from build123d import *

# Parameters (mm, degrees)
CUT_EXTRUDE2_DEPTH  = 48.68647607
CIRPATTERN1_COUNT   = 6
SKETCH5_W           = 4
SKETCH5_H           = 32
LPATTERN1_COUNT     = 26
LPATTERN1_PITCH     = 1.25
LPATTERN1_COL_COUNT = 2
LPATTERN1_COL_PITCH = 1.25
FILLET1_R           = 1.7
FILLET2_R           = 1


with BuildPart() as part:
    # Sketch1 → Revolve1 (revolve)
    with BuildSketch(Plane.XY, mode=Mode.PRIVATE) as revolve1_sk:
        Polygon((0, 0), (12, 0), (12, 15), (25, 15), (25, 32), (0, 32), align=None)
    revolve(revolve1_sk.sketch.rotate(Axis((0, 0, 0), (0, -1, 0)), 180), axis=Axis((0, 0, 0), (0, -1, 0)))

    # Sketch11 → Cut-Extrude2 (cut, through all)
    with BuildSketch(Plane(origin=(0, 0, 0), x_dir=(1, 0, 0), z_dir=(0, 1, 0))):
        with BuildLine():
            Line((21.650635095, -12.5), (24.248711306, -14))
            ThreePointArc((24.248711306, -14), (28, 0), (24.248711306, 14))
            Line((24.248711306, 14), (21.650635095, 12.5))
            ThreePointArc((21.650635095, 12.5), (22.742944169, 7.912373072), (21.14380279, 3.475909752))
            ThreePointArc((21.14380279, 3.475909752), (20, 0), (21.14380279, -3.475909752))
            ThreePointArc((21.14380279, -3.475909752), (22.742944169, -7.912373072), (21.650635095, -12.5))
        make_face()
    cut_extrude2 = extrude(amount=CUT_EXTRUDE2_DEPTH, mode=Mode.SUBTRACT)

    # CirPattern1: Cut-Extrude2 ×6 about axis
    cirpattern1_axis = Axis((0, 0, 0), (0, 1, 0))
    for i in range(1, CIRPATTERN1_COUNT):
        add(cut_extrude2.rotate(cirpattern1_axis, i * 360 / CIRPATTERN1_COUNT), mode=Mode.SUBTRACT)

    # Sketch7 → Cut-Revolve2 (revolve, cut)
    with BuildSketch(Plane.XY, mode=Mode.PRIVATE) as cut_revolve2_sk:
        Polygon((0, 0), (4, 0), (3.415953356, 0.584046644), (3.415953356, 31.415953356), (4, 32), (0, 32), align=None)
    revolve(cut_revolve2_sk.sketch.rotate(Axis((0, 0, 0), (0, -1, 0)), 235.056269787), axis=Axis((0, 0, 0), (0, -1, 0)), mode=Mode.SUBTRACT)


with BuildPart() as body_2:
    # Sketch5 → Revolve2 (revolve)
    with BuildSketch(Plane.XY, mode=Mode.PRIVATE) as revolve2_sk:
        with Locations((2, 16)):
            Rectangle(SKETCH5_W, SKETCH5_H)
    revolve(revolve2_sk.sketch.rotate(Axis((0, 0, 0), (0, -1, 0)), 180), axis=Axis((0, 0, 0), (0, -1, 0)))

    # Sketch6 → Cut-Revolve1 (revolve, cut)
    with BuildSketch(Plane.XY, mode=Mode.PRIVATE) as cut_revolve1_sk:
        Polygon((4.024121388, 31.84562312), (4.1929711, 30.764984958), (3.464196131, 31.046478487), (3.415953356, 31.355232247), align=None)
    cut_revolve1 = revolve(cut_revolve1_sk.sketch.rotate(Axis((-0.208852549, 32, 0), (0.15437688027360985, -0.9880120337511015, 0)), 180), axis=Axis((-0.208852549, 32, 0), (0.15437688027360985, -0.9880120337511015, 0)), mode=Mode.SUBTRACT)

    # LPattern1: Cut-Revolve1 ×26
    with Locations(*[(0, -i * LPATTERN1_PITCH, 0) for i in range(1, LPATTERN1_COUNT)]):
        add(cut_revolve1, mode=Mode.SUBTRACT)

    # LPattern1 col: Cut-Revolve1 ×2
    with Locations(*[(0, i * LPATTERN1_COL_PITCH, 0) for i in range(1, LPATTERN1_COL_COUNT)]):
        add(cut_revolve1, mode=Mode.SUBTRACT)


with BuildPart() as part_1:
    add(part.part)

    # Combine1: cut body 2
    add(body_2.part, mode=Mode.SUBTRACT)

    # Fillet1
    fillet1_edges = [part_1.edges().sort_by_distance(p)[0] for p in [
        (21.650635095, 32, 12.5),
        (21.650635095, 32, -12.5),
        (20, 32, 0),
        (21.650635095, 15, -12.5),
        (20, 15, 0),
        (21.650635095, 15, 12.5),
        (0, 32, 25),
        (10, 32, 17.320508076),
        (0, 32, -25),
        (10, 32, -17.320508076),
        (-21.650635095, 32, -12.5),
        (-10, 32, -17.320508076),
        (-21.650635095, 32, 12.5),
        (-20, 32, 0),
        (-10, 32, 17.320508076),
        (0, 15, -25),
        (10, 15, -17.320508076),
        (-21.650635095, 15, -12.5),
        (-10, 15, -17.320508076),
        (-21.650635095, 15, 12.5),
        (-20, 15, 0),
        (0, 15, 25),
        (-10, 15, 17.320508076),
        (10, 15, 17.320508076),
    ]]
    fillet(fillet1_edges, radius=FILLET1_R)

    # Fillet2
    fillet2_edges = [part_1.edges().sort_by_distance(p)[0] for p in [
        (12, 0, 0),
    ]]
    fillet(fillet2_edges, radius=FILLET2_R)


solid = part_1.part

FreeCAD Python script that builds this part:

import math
import FreeCAD as App
import Part
import Sketcher
Q = App.Units.Quantity


def edges_at(feature, points):
    """Names of the edges that pass closest to the given points."""
    edges = feature.Shape.Edges
    near = lambda p: min(range(len(edges)), key=lambda i: edges[i].distToShape(Part.Vertex(*p))[0])
    return sorted({f"Edge{near(p) + 1}" for p in points})

doc = App.newDocument("Part")
body = doc.addObject("PartDesign::Body", "Body")

# Sketch on XY plane
sketch1 = body.newObject("Sketcher::SketchObject", "Sketch")
sketch1.AttachmentSupport = (doc.getObject("XY_Plane"), [""])
sketch1.MapMode = "FlatFace"
sketch1.addGeometry([
    Part.LineSegment(App.Vector(0, 0, 0), App.Vector(12, 0, 0)),  # 0
    Part.LineSegment(App.Vector(12, 0, 0), App.Vector(12, 15, 0)),  # 1
    Part.LineSegment(App.Vector(12, 15, 0), App.Vector(25, 15, 0)),  # 2
    Part.LineSegment(App.Vector(25, 15, 0), App.Vector(25, 32, 0)),  # 3
    Part.LineSegment(App.Vector(25, 32, 0), App.Vector(0, 32, 0)),  # 4
    Part.LineSegment(App.Vector(0, 32, 0), App.Vector(0, 0, 0)),  # 5
], False)
sketch1.addConstraint([
    Sketcher.Constraint("Coincident", 0, 2, 1, 1),
    Sketcher.Constraint("Coincident", 1, 2, 2, 1),
    Sketcher.Constraint("Coincident", 2, 2, 3, 1),
    Sketcher.Constraint("Coincident", 3, 2, 4, 1),
    Sketcher.Constraint("Coincident", 4, 2, 5, 1),
    Sketcher.Constraint("Coincident", 5, 2, 0, 1),
    Sketcher.Constraint("Horizontal", 0),
    Sketcher.Constraint("Vertical", 1),
    Sketcher.Constraint("Horizontal", 2),
    Sketcher.Constraint("Vertical", 3),
    Sketcher.Constraint("Horizontal", 4),
    Sketcher.Constraint("Vertical", 5),
    Sketcher.Constraint("Coincident", 5, 2, -1, 1),
    Sketcher.Constraint("DistanceX", 0, 1, 0, 2, Q("12 mm")),
    Sketcher.Constraint("DistanceX", 2, 1, 2, 2, Q("13 mm")),
    Sketcher.Constraint("DistanceY", 1, 1, 1, 2, Q("15 mm")),
    Sketcher.Constraint("DistanceY", 3, 1, 3, 2, Q("17 mm")),
])
revolution = body.newObject("PartDesign::Revolution", "Revolution")
revolution.Profile = sketch1
revolution.ReferenceAxis = (sketch1, ["V_Axis"])
revolution.Angle = 360

# Sketch on XZ plane
sketch2 = body.newObject("Sketcher::SketchObject", "Sketch001")
sketch2.AttachmentSupport = (doc.getObject("XZ_Plane"), [""])
sketch2.MapMode = "FlatFace"
sketch2.addGeometry([
    Part.LineSegment(App.Vector(21.7, 12.5, 0), App.Vector(24.2, 14, 0)),  # 0
    Part.ArcOfCircle(Part.Circle(App.Vector(0, 0, 0), App.Vector(0, 0, 1), 28), math.radians(-30), math.radians(30)),  # 1
    Part.LineSegment(App.Vector(24.2, -14, 0), App.Vector(21.7, -12.5, 0)),  # 2
    Part.ArcOfCircle(Part.Circle(App.Vector(14.5, -8.4, 0), App.Vector(0, 0, 1), 8.2), math.radians(-30), math.radians(36)),  # 3
    Part.ArcOfCircle(Part.Circle(App.Vector(25.9, 0, 0), App.Vector(0, 0, 1), 5.9), math.radians(144), math.radians(216)),  # 4
    Part.ArcOfCircle(Part.Circle(App.Vector(14.5, 8.4, 0), App.Vector(0, 0, 1), 8.2), math.radians(-36), math.radians(30)),  # 5
], False)
sketch2.addConstraint([
    Sketcher.Constraint("Coincident", 0, 2, 1, 2),
    Sketcher.Constraint("Coincident", 1, 1, 2, 1),
    Sketcher.Constraint("Coincident", 2, 2, 3, 1),
    Sketcher.Constraint("Tangent", 3, 2, 4, 2),
    Sketcher.Constraint("Tangent", 4, 1, 5, 1),
    Sketcher.Constraint("Coincident", 5, 2, 0, 1),
    Sketcher.Constraint("Coincident", 1, 3, -1, 1),
    Sketcher.Constraint("Equal", 3, 5),
    Sketcher.Constraint("Symmetric", 3, 3, 5, 3, -1),
    Sketcher.Constraint("Vertical", 0, 2, 1, 1),
    Sketcher.Constraint("Vertical", 2, 2, 5, 2),
    Sketcher.Constraint("Radius", 1, Q("28 mm")),
    Sketcher.Constraint("Angle", 0, Q("30 deg")),
    Sketcher.Constraint("Radius", 3, Q("8.25 mm")),
    Sketcher.Constraint("Distance", 0, Q("3 mm")),
    Sketcher.Constraint("DistanceY", -1, 1, 0, 2, Q("14 mm")),
    Sketcher.Constraint("DistanceY", 3, 3, 5, 3, Q("16.75 mm")),
    Sketcher.Constraint("Radius", 4, Q("5.853384 mm")),
])
pocket1 = body.newObject("PartDesign::Pocket", "Pocket")
pocket1.Profile = sketch2
pocket1.Type = "ThroughAll"
doc.recompute()

polarpattern = body.newObject("PartDesign::PolarPattern", "PolarPattern")
polarpattern.Originals = [pocket1]
polarpattern.Axis = (doc.getObject("Y_Axis"), [""])
polarpattern.Angle = 360
polarpattern.Occurrences = 6
body.Tip = polarpattern

# Sketch on XY plane
sketch3 = body.newObject("Sketcher::SketchObject", "Sketch002")
sketch3.AttachmentSupport = (doc.getObject("XY_Plane"), [""])
sketch3.MapMode = "FlatFace"
sketch3.addGeometry([
    Part.LineSegment(App.Vector(0, 0, 0), App.Vector(4, 0, 0)),  # 0
    Part.LineSegment(App.Vector(4, 0, 0), App.Vector(3.4, 0.6, 0)),  # 1
    Part.LineSegment(App.Vector(3.4, 0.6, 0), App.Vector(3.4, 31.4, 0)),  # 2
    Part.LineSegment(App.Vector(3.4, 31.4, 0), App.Vector(4, 32, 0)),  # 3
    Part.LineSegment(App.Vector(4, 32, 0), App.Vector(0, 32, 0)),  # 4
    Part.LineSegment(App.Vector(0, 32, 0), App.Vector(0, 0, 0)),  # 5
], False)
sketch3.addConstraint([
    Sketcher.Constraint("Coincident", 0, 2, 1, 1),
    Sketcher.Constraint("Coincident", 1, 2, 2, 1),
    Sketcher.Constraint("Coincident", 2, 2, 3, 1),
    Sketcher.Constraint("Coincident", 3, 2, 4, 1),
    Sketcher.Constraint("Coincident", 4, 2, 5, 1),
    Sketcher.Constraint("Coincident", 5, 2, 0, 1),
    Sketcher.Constraint("Horizontal", 0),
    Sketcher.Constraint("Vertical", 2),
    Sketcher.Constraint("Horizontal", 4),
    Sketcher.Constraint("Vertical", 5),
    Sketcher.Constraint("Coincident", 5, 2, -1, 1),
    Sketcher.Constraint("Perpendicular", 1, 3),
    Sketcher.Constraint("Vertical", 0, 2, 3, 2),
    Sketcher.Constraint("Equal", 1, 3),
    Sketcher.Constraint("DistanceX", 0, 1, 0, 2, Q("4 mm")),
    Sketcher.Constraint("DistanceY", 5, 2, 5, 1, Q("32 mm")),
    Sketcher.Constraint("DistanceY", 2, 1, 2, 2, Q("30.831907 mm")),
])
groove = body.newObject("PartDesign::Groove", "Groove")
groove.Profile = sketch3
groove.ReferenceAxis = (sketch3, ["V_Axis"])
groove.Angle = 360
body2 = doc.addObject("PartDesign::Body", "Body001")

# Sketch on XY plane
sketch4 = body2.newObject("Sketcher::SketchObject", "Sketch003")
sketch4.AttachmentSupport = (doc.getObject("XY_Plane001"), [""])
sketch4.MapMode = "FlatFace"
sketch4.addGeometry([
    Part.LineSegment(App.Vector(0, 32, 0), App.Vector(0, 0, 0)),
    Part.LineSegment(App.Vector(0, 0, 0), App.Vector(4, 0, 0)),
    Part.LineSegment(App.Vector(4, 0, 0), App.Vector(4, 32, 0)),
    Part.LineSegment(App.Vector(4, 32, 0), App.Vector(0, 32, 0)),
], False)
sketch4.addConstraint([
    Sketcher.Constraint("Coincident", 0, 2, 1, 1),
    Sketcher.Constraint("Coincident", 1, 2, 2, 1),
    Sketcher.Constraint("Coincident", 2, 2, 3, 1),
    Sketcher.Constraint("Coincident", 3, 2, 0, 1),
    Sketcher.Constraint("Vertical", 0),
    Sketcher.Constraint("Horizontal", 1),
    Sketcher.Constraint("Vertical", 2),
    Sketcher.Constraint("Horizontal", 3),
    Sketcher.Constraint("Coincident", 0, 2, -1, 1),
    Sketcher.Constraint("DistanceX", 1, 1, 1, 2, Q("4 mm")),
    Sketcher.Constraint("DistanceY", 0, 2, 0, 1, Q("32 mm")),
])
revolution2 = body2.newObject("PartDesign::Revolution", "Revolution001")
revolution2.Profile = sketch4
revolution2.ReferenceAxis = (sketch4, ["V_Axis"])
revolution2.Angle = 360

# Sketch on XY plane
sketch5 = body2.newObject("Sketcher::SketchObject", "Sketch004")
sketch5.AttachmentSupport = (doc.getObject("XY_Plane001"), [""])
sketch5.MapMode = "FlatFace"
sketch5.addGeometry([
    Part.LineSegment(App.Vector(4.19, 30.76, 0), App.Vector(4.02, 31.85, 0)),
    Part.LineSegment(App.Vector(4.02, 31.85, 0), App.Vector(3.42, 31.36, 0)),
    Part.LineSegment(App.Vector(3.42, 31.36, 0), App.Vector(3.46, 31.05, 0)),
    Part.LineSegment(App.Vector(3.46, 31.05, 0), App.Vector(4.19, 30.76, 0)),
], False)
sketch5.addGeometry(Part.LineSegment(App.Vector(-0.08, 31.2, 0), App.Vector(0.08, 30.12, 0)), True)  # axis
sketch5.addConstraint([
    Sketcher.Constraint("Coincident", 0, 2, 1, 1),
    Sketcher.Constraint("Coincident", 1, 2, 2, 1),
    Sketcher.Constraint("Coincident", 2, 2, 3, 1),
    Sketcher.Constraint("Coincident", 3, 2, 0, 1),
    Sketcher.Constraint("Parallel", 0, 2),
    Sketcher.Constraint("Parallel", 2, 4),
    Sketcher.Constraint("Equal", 1, 3),
    Sketcher.Constraint("Equal", 0, 4),
    Sketcher.Constraint("Distance", 2, Q("0.3125 mm")),
    Sketcher.Constraint("DistanceY", 4, 2, 0, 2, Q("1.722599 mm")),
    Sketcher.Constraint("Distance", 0, Q("1.09375 mm")),
    Sketcher.Constraint("Distance", 1, Q("0.78125 mm")),
    Sketcher.Constraint("DistanceX", -1, 1, 0, 2, Q("4.024121 mm")),
    Sketcher.Constraint("DistanceY", -1, 1, 2, 2, Q("31.046478 mm")),
    Sketcher.Constraint("DistanceX", -1, 1, 3, 2, Q("4.192971 mm")),
    Sketcher.Constraint("DistanceX", 4, 1, 1, 2, Q("3.500378 mm")),
])
groove2 = body2.newObject("PartDesign::Groove", "Groove001")
groove2.Profile = sketch5
groove2.ReferenceAxis = (sketch5, ["Axis0"])
groove2.Angle = 360
doc.recompute()

linearpattern = body2.newObject("PartDesign::LinearPattern", "LinearPattern")
linearpattern.Originals = [groove2]
linearpattern.Direction = (doc.getObject("Y_Axis001"), [""])
linearpattern.Mode = "offset"
linearpattern.Offset = 1.25
linearpattern.Occurrences = 26
linearpattern.Reversed = True
body2.Tip = linearpattern
doc.recompute()

linearpattern2 = body2.newObject("PartDesign::LinearPattern", "LinearPattern001")
linearpattern2.Originals = [groove2]
linearpattern2.Direction = (doc.getObject("Y_Axis001"), [""])
linearpattern2.Mode = "offset"
linearpattern2.Offset = 1.25
linearpattern2.Occurrences = 2
body2.Tip = linearpattern2
doc.recompute()

boolean = body.newObject("PartDesign::Boolean", "Boolean")
boolean.Type = "Cut"
boolean.addObjects([body2])
doc.recompute()

fillet = body.newObject("PartDesign::Fillet", "Fillet")
fillet.Base = (boolean, edges_at(boolean, [
    (22.743, 32, 7.912),
    (18.224, 32, -15.74),
    (20, 32, 0),
    (22.743, 15, -7.912),
    (20, 15, 0),
    (22.743, 15, 7.912),
    (4.519, 32, 23.652),
    (10, 32, 17.321),
    (-4.519, 32, -23.652),
    (10, 32, -17.321),
    (-22.743, 32, -7.912),
    (-10, 32, -17.321),
    (-18.224, 32, 15.74),
    (-20, 32, 0),
    (-10, 32, 17.321),
    (-4.519, 15, -23.652),
    (10, 15, -17.321),
    (-22.743, 15, -7.912),
    (-10, 15, -17.321),
    (-18.224, 15, 15.74),
    (-20, 15, 0),
    (4.519, 15, 23.652),
    (-10, 15, 17.321),
    (10, 15, 17.321),
]))
fillet.Radius = 1.7
doc.recompute()

fillet2 = body.newObject("PartDesign::Fillet", "Fillet001")
fillet2.Base = (fillet, edges_at(fillet, [(12, 0, 0)]))
fillet2.Radius = 1

doc.recompute()
